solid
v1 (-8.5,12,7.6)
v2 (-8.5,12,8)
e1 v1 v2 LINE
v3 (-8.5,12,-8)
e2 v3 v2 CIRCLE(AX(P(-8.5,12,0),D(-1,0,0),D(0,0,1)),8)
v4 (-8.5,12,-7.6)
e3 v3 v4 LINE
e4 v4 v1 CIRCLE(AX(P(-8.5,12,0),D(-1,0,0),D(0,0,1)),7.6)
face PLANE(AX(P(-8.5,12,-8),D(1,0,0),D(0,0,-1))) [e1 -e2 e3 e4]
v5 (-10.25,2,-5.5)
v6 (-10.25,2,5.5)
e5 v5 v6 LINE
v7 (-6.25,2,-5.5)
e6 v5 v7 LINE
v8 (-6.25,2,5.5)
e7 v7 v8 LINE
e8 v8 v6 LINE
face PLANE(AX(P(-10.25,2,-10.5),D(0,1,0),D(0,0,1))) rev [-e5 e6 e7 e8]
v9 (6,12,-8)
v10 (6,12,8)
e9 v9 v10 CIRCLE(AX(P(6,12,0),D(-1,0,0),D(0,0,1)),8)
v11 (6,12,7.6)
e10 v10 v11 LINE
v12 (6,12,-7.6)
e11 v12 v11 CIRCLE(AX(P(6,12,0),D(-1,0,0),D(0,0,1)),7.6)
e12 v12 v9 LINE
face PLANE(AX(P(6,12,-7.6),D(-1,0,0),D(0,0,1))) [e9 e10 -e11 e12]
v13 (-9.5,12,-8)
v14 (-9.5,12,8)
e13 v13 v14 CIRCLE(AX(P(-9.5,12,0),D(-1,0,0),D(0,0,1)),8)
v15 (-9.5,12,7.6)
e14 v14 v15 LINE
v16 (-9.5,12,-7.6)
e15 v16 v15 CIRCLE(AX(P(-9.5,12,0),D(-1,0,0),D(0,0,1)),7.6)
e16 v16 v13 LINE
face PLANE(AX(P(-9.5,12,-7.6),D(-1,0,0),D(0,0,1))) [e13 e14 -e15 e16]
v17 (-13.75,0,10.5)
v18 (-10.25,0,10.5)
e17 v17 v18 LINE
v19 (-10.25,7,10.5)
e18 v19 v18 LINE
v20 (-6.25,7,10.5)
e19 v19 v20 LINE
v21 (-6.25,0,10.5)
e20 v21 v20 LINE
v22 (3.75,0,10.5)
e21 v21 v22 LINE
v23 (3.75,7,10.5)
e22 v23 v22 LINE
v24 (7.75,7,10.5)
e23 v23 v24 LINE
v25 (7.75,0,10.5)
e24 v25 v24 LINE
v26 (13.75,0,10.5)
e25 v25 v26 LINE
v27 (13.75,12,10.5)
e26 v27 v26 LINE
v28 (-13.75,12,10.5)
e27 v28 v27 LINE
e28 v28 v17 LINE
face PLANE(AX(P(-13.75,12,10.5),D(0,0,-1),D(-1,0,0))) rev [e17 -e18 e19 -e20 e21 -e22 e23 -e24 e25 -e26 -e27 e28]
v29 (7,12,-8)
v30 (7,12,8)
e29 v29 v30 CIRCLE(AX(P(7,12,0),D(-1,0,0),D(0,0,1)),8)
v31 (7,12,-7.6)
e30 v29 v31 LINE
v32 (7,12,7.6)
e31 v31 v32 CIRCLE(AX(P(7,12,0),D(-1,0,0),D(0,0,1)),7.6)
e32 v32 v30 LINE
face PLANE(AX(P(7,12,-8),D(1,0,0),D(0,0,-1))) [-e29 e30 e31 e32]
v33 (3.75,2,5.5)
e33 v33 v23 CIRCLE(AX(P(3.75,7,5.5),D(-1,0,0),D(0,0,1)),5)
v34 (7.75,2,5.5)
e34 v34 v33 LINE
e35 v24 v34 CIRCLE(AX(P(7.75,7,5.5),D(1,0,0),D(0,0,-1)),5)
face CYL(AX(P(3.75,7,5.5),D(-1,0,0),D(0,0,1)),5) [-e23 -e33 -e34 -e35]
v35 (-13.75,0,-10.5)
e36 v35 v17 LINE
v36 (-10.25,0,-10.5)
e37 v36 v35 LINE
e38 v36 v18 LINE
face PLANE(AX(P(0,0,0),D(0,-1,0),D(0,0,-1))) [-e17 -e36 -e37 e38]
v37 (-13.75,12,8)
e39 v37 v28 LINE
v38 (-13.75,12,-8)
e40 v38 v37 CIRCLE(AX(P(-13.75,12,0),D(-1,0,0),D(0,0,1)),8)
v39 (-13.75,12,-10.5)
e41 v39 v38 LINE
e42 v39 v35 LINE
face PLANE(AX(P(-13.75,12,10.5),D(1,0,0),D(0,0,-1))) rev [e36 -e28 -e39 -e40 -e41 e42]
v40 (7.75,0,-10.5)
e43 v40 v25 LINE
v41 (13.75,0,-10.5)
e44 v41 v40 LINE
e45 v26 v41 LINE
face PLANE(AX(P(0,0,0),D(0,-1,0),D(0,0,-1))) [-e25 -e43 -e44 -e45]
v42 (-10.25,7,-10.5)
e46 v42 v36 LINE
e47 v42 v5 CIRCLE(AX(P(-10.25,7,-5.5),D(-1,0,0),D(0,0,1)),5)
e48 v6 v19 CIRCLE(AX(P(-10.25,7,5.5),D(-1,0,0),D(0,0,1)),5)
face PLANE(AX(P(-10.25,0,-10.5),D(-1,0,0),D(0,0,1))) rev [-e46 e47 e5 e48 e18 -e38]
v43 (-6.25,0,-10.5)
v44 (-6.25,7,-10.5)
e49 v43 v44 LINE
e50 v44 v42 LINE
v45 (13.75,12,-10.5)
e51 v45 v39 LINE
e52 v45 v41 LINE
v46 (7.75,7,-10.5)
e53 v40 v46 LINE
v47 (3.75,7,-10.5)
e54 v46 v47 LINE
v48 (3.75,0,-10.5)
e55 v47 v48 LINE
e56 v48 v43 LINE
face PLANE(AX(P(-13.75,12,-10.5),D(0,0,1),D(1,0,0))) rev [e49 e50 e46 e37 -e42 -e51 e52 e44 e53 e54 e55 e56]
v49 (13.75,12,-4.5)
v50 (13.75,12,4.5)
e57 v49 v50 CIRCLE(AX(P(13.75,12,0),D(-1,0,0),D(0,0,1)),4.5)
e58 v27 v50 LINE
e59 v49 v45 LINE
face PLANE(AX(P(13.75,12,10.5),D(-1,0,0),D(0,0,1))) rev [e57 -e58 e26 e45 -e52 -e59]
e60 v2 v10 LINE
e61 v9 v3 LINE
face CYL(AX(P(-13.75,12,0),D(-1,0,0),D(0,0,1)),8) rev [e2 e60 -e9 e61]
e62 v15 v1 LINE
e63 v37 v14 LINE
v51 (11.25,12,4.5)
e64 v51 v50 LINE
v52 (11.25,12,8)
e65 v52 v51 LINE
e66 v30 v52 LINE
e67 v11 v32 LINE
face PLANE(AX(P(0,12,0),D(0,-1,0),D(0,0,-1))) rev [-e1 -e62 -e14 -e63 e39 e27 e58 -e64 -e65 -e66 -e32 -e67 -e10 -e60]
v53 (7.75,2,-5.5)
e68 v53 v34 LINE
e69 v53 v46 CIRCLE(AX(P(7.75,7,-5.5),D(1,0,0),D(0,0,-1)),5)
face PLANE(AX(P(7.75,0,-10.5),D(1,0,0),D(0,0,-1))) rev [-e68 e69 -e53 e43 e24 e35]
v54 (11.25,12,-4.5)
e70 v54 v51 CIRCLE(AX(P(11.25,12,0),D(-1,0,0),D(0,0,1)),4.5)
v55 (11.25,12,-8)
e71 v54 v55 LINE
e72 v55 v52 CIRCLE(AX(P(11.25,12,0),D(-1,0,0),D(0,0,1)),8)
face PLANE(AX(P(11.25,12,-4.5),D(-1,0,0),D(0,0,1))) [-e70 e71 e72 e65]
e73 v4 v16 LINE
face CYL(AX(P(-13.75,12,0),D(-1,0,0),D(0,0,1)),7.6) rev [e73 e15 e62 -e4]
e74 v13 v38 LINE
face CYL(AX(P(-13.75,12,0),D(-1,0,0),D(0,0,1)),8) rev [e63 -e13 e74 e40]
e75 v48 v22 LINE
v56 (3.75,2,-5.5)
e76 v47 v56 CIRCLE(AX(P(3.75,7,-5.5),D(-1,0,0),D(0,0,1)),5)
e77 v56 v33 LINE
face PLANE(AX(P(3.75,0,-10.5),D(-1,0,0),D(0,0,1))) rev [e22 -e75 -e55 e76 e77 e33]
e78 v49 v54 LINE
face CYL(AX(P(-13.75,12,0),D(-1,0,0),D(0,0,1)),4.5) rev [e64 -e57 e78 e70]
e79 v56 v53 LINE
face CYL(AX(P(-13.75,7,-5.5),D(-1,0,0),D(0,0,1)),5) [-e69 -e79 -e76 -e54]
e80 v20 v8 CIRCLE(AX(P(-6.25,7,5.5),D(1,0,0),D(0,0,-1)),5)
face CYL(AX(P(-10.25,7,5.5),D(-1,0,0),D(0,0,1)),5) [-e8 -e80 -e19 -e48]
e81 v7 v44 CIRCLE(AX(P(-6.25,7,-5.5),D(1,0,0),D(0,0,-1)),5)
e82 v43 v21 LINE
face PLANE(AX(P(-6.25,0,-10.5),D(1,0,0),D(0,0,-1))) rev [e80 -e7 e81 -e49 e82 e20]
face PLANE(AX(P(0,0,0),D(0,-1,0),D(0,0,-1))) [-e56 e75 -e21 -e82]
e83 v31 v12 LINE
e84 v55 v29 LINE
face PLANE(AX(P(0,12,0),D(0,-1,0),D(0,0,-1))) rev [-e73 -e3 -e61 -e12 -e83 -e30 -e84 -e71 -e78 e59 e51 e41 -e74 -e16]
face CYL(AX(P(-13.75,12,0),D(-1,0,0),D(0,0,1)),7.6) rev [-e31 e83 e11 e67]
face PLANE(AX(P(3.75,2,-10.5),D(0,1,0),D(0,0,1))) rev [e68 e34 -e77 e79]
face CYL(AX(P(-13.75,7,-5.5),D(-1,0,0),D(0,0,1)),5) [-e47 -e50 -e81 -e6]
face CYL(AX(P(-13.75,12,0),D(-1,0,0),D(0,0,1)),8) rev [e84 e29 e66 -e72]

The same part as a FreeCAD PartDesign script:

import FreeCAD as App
import Part
import Sketcher

V = App.Vector


def edges_at(feature, points):
    """Names of the edges that pass closest to the given points."""
    edges = feature.Shape.Edges
    near = lambda p: min(range(len(edges)), key=lambda i: edges[i].distToShape(Part.Vertex(*p))[0])
    return sorted({f"Edge{near(p) + 1}" for p in points})


def add_polygon(sketch, points):
    """Adds a closed chain of lines whose ends are joined by coincident constraints."""
    first, n = sketch.GeometryCount, len(points)
    for a, b in zip(points, points[1:] + points[:1]):
        sketch.addGeometry(Part.LineSegment(App.Vector(*a, 0), App.Vector(*b, 0)), False)
    for i in range(n):
        sketch.addConstraint(Sketcher.Constraint("Coincident", first + i, 2, first + (i + 1) % n, 1))

doc = App.newDocument("Part")
body = doc.addObject("PartDesign::Body", "Body")

sketch1 = doc.addObject("Sketcher::SketchObject", "Sketch")
body.addObject(sketch1)
sketch1.AttachmentSupport = (doc.XZ_Plane, [""])
sketch1.MapMode = "FlatFace"
add_polygon(sketch1, [(-14, -10), (-14, 10), (14, 10), (14, -10)])
sketch1.addConstraint(Sketcher.Constraint("Vertical", 0))
sketch1.addConstraint(Sketcher.Constraint("Horizontal", 1))
sketch1.addConstraint(Sketcher.Constraint("Vertical", 2))
sketch1.addConstraint(Sketcher.Constraint("Horizontal", 3))
sketch1.addConstraint(Sketcher.Constraint("Symmetric", 0, 2, 2, 2, -1, 1))
sketch1.addConstraint(Sketcher.Constraint("DistanceY", 0, 1, 0, 2, 21.0))
sketch1.addConstraint(Sketcher.Constraint("DistanceX", 1, 1, 1, 2, 27.5))
pad1 = doc.addObject("PartDesign::Pad", "Pad")
body.addObject(pad1)
pad1.Profile = sketch1
pad1.Length = 12
pad1.Reversed = True

sketch2 = doc.addObject("Sketcher::SketchObject", "Sketch001")
body.addObject(sketch2)
sketch2.AttachmentSupport = (doc.XZ_Plane, [""])
sketch2.MapMode = "FlatFace"
sketch2.AttachmentOffset = App.Placement(V(0, 0, -12), App.Rotation())
add_polygon(sketch2, [(-13.75, 0), (13.75, 0), (13.75, -4.5), (11.25, -4.5), (11.25, -8), (7, -8), (7, -7.6), (6, -7.6), (6, -8), (-8.5, -8), (-8.5, -7.6), (-9.5, -7.6), (-9.5, -8), (-13.75, -8)])
sketch2.addConstraint(Sketcher.Constraint("Horizontal", 0))
sketch2.addConstraint(Sketcher.Constraint("Vertical", 1))
sketch2.addConstraint(Sketcher.Constraint("Horizontal", 2))
sketch2.addConstraint(Sketcher.Constraint("Vertical", 3))
sketch2.addConstraint(Sketcher.Constraint("Horizontal", 4))
sketch2.addConstraint(Sketcher.Constraint("Vertical", 5))
sketch2.addConstraint(Sketcher.Constraint("Horizontal", 6))
sketch2.addConstraint(Sketcher.Constraint("Vertical", 7))
sketch2.addConstraint(Sketcher.Constraint("Horizontal", 8))
sketch2.addConstraint(Sketcher.Constraint("Vertical", 9))
sketch2.addConstraint(Sketcher.Constraint("Horizontal", 10))
sketch2.addConstraint(Sketcher.Constraint("Vertical", 11))
sketch2.addConstraint(Sketcher.Constraint("Horizontal", 12))
sketch2.addConstraint(Sketcher.Constraint("Vertical", 13))
sketch2.addConstraint(Sketcher.Constraint("Symmetric", 0, 2, 13, 2, -1, 1))
sketch2.addConstraint(Sketcher.Constraint("Horizontal", 4, 2, 7, 2))
sketch2.addConstraint(Sketcher.Constraint("Horizontal", 6, 2, 9, 2))
sketch2.addConstraint(Sketcher.Constraint("Horizontal", 8, 2, 11, 2))
sketch2.addConstraint(Sketcher.Constraint("Equal", 6, 10))
sketch2.addConstraint(Sketcher.Constraint("Equal", 4, 12))
sketch2.addConstraint(Sketcher.Constraint("DistanceX", 6, 2, 6, 1, 1.0))
sketch2.addConstraint(Sketcher.Constraint("DistanceY", 13, 1, 13, 2, 8.0))
sketch2.addConstraint(Sketcher.Constraint("DistanceX", 0, 1, 0, 2, 27.5))
sketch2.addConstraint(Sketcher.Constraint("DistanceX", 2, 2, 2, 1, 2.5))
sketch2.addConstraint(Sketcher.Constraint("DistanceX", 8, 2, 8, 1, 14.5))
sketch2.addConstraint(Sketcher.Constraint("DistanceY", 1, 2, 1, 1, 4.5))
sketch2.addConstraint(Sketcher.Constraint("DistanceY", 5, 1, 5, 2, 0.4))
groove = doc.addObject("PartDesign::Groove", "Groove")
body.addObject(groove)
groove.Profile = sketch2
groove.ReferenceAxis = (sketch2, ["H_Axis"])
groove.Angle = 360

sketch3 = doc.addObject("Sketcher::SketchObject", "Sketch002")
body.addObject(sketch3)
sketch3.AttachmentSupport = (doc.XY_Plane, [""])
sketch3.MapMode = "FlatFace"
sketch3.AttachmentOffset = App.Placement(V(0, 0, 10.5), App.Rotation())
add_polygon(sketch3, [(-10.2, 2), (-10.2, 0), (-6.2, 0), (-6.2, 2)])
add_polygon(sketch3, [(3.8, 2), (3.8, 0), (7.8, 0), (7.8, 2)])
sketch3.addConstraint(Sketcher.Constraint("Vertical", 0))
sketch3.addConstraint(Sketcher.Constraint("Horizontal", 1))
sketch3.addConstraint(Sketcher.Constraint("Vertical", 2))
sketch3.addConstraint(Sketcher.Constraint("Horizontal", 3))
sketch3.addConstraint(Sketcher.Constraint("Vertical", 4))
sketch3.addConstraint(Sketcher.Constraint("Horizontal", 5))
sketch3.addConstraint(Sketcher.Constraint("Vertical", 6))
sketch3.addConstraint(Sketcher.Constraint("Horizontal", 7))
sketch3.addConstraint(Sketcher.Constraint("PointOnObject", 0, 2, -1))
sketch3.addConstraint(Sketcher.Constraint("PointOnObject", 4, 2, -1))
sketch3.addConstraint(Sketcher.Constraint("Horizontal", 3, 2, 6, 2))
sketch3.addConstraint(Sketcher.Constraint("Equal", 3, 5))
sketch3.addConstraint(Sketcher.Constraint("DistanceX", 1, 1, 1, 2, 4.0))
sketch3.addConstraint(Sketcher.Constraint("DistanceY", 0, 2, 0, 1, 2.0))
sketch3.addConstraint(Sketcher.Constraint("DistanceX", 1, 2, 4, 2, 10.0))
sketch3.addConstraint(Sketcher.Constraint("DistanceX", 0, 2, -1, 1, 10.25))
pocket1 = doc.addObject("PartDesign::Pocket", "Pocket")
body.addObject(pocket1)
pocket1.Profile = sketch3
pocket1.Type = "ThroughAll"
doc.recompute()

fillet = doc.addObject("PartDesign::Fillet", "Fillet")
body.addObject(fillet)
fillet.Base = (pocket1, edges_at(pocket1, [
    (-8.25, 2, -10.5),
    (-8.25, 2, 10.5),
    (5.75, 2, -10.5),
    (5.75, 2, 10.5),
]))
fillet.Radius = 5

doc.recompute()
